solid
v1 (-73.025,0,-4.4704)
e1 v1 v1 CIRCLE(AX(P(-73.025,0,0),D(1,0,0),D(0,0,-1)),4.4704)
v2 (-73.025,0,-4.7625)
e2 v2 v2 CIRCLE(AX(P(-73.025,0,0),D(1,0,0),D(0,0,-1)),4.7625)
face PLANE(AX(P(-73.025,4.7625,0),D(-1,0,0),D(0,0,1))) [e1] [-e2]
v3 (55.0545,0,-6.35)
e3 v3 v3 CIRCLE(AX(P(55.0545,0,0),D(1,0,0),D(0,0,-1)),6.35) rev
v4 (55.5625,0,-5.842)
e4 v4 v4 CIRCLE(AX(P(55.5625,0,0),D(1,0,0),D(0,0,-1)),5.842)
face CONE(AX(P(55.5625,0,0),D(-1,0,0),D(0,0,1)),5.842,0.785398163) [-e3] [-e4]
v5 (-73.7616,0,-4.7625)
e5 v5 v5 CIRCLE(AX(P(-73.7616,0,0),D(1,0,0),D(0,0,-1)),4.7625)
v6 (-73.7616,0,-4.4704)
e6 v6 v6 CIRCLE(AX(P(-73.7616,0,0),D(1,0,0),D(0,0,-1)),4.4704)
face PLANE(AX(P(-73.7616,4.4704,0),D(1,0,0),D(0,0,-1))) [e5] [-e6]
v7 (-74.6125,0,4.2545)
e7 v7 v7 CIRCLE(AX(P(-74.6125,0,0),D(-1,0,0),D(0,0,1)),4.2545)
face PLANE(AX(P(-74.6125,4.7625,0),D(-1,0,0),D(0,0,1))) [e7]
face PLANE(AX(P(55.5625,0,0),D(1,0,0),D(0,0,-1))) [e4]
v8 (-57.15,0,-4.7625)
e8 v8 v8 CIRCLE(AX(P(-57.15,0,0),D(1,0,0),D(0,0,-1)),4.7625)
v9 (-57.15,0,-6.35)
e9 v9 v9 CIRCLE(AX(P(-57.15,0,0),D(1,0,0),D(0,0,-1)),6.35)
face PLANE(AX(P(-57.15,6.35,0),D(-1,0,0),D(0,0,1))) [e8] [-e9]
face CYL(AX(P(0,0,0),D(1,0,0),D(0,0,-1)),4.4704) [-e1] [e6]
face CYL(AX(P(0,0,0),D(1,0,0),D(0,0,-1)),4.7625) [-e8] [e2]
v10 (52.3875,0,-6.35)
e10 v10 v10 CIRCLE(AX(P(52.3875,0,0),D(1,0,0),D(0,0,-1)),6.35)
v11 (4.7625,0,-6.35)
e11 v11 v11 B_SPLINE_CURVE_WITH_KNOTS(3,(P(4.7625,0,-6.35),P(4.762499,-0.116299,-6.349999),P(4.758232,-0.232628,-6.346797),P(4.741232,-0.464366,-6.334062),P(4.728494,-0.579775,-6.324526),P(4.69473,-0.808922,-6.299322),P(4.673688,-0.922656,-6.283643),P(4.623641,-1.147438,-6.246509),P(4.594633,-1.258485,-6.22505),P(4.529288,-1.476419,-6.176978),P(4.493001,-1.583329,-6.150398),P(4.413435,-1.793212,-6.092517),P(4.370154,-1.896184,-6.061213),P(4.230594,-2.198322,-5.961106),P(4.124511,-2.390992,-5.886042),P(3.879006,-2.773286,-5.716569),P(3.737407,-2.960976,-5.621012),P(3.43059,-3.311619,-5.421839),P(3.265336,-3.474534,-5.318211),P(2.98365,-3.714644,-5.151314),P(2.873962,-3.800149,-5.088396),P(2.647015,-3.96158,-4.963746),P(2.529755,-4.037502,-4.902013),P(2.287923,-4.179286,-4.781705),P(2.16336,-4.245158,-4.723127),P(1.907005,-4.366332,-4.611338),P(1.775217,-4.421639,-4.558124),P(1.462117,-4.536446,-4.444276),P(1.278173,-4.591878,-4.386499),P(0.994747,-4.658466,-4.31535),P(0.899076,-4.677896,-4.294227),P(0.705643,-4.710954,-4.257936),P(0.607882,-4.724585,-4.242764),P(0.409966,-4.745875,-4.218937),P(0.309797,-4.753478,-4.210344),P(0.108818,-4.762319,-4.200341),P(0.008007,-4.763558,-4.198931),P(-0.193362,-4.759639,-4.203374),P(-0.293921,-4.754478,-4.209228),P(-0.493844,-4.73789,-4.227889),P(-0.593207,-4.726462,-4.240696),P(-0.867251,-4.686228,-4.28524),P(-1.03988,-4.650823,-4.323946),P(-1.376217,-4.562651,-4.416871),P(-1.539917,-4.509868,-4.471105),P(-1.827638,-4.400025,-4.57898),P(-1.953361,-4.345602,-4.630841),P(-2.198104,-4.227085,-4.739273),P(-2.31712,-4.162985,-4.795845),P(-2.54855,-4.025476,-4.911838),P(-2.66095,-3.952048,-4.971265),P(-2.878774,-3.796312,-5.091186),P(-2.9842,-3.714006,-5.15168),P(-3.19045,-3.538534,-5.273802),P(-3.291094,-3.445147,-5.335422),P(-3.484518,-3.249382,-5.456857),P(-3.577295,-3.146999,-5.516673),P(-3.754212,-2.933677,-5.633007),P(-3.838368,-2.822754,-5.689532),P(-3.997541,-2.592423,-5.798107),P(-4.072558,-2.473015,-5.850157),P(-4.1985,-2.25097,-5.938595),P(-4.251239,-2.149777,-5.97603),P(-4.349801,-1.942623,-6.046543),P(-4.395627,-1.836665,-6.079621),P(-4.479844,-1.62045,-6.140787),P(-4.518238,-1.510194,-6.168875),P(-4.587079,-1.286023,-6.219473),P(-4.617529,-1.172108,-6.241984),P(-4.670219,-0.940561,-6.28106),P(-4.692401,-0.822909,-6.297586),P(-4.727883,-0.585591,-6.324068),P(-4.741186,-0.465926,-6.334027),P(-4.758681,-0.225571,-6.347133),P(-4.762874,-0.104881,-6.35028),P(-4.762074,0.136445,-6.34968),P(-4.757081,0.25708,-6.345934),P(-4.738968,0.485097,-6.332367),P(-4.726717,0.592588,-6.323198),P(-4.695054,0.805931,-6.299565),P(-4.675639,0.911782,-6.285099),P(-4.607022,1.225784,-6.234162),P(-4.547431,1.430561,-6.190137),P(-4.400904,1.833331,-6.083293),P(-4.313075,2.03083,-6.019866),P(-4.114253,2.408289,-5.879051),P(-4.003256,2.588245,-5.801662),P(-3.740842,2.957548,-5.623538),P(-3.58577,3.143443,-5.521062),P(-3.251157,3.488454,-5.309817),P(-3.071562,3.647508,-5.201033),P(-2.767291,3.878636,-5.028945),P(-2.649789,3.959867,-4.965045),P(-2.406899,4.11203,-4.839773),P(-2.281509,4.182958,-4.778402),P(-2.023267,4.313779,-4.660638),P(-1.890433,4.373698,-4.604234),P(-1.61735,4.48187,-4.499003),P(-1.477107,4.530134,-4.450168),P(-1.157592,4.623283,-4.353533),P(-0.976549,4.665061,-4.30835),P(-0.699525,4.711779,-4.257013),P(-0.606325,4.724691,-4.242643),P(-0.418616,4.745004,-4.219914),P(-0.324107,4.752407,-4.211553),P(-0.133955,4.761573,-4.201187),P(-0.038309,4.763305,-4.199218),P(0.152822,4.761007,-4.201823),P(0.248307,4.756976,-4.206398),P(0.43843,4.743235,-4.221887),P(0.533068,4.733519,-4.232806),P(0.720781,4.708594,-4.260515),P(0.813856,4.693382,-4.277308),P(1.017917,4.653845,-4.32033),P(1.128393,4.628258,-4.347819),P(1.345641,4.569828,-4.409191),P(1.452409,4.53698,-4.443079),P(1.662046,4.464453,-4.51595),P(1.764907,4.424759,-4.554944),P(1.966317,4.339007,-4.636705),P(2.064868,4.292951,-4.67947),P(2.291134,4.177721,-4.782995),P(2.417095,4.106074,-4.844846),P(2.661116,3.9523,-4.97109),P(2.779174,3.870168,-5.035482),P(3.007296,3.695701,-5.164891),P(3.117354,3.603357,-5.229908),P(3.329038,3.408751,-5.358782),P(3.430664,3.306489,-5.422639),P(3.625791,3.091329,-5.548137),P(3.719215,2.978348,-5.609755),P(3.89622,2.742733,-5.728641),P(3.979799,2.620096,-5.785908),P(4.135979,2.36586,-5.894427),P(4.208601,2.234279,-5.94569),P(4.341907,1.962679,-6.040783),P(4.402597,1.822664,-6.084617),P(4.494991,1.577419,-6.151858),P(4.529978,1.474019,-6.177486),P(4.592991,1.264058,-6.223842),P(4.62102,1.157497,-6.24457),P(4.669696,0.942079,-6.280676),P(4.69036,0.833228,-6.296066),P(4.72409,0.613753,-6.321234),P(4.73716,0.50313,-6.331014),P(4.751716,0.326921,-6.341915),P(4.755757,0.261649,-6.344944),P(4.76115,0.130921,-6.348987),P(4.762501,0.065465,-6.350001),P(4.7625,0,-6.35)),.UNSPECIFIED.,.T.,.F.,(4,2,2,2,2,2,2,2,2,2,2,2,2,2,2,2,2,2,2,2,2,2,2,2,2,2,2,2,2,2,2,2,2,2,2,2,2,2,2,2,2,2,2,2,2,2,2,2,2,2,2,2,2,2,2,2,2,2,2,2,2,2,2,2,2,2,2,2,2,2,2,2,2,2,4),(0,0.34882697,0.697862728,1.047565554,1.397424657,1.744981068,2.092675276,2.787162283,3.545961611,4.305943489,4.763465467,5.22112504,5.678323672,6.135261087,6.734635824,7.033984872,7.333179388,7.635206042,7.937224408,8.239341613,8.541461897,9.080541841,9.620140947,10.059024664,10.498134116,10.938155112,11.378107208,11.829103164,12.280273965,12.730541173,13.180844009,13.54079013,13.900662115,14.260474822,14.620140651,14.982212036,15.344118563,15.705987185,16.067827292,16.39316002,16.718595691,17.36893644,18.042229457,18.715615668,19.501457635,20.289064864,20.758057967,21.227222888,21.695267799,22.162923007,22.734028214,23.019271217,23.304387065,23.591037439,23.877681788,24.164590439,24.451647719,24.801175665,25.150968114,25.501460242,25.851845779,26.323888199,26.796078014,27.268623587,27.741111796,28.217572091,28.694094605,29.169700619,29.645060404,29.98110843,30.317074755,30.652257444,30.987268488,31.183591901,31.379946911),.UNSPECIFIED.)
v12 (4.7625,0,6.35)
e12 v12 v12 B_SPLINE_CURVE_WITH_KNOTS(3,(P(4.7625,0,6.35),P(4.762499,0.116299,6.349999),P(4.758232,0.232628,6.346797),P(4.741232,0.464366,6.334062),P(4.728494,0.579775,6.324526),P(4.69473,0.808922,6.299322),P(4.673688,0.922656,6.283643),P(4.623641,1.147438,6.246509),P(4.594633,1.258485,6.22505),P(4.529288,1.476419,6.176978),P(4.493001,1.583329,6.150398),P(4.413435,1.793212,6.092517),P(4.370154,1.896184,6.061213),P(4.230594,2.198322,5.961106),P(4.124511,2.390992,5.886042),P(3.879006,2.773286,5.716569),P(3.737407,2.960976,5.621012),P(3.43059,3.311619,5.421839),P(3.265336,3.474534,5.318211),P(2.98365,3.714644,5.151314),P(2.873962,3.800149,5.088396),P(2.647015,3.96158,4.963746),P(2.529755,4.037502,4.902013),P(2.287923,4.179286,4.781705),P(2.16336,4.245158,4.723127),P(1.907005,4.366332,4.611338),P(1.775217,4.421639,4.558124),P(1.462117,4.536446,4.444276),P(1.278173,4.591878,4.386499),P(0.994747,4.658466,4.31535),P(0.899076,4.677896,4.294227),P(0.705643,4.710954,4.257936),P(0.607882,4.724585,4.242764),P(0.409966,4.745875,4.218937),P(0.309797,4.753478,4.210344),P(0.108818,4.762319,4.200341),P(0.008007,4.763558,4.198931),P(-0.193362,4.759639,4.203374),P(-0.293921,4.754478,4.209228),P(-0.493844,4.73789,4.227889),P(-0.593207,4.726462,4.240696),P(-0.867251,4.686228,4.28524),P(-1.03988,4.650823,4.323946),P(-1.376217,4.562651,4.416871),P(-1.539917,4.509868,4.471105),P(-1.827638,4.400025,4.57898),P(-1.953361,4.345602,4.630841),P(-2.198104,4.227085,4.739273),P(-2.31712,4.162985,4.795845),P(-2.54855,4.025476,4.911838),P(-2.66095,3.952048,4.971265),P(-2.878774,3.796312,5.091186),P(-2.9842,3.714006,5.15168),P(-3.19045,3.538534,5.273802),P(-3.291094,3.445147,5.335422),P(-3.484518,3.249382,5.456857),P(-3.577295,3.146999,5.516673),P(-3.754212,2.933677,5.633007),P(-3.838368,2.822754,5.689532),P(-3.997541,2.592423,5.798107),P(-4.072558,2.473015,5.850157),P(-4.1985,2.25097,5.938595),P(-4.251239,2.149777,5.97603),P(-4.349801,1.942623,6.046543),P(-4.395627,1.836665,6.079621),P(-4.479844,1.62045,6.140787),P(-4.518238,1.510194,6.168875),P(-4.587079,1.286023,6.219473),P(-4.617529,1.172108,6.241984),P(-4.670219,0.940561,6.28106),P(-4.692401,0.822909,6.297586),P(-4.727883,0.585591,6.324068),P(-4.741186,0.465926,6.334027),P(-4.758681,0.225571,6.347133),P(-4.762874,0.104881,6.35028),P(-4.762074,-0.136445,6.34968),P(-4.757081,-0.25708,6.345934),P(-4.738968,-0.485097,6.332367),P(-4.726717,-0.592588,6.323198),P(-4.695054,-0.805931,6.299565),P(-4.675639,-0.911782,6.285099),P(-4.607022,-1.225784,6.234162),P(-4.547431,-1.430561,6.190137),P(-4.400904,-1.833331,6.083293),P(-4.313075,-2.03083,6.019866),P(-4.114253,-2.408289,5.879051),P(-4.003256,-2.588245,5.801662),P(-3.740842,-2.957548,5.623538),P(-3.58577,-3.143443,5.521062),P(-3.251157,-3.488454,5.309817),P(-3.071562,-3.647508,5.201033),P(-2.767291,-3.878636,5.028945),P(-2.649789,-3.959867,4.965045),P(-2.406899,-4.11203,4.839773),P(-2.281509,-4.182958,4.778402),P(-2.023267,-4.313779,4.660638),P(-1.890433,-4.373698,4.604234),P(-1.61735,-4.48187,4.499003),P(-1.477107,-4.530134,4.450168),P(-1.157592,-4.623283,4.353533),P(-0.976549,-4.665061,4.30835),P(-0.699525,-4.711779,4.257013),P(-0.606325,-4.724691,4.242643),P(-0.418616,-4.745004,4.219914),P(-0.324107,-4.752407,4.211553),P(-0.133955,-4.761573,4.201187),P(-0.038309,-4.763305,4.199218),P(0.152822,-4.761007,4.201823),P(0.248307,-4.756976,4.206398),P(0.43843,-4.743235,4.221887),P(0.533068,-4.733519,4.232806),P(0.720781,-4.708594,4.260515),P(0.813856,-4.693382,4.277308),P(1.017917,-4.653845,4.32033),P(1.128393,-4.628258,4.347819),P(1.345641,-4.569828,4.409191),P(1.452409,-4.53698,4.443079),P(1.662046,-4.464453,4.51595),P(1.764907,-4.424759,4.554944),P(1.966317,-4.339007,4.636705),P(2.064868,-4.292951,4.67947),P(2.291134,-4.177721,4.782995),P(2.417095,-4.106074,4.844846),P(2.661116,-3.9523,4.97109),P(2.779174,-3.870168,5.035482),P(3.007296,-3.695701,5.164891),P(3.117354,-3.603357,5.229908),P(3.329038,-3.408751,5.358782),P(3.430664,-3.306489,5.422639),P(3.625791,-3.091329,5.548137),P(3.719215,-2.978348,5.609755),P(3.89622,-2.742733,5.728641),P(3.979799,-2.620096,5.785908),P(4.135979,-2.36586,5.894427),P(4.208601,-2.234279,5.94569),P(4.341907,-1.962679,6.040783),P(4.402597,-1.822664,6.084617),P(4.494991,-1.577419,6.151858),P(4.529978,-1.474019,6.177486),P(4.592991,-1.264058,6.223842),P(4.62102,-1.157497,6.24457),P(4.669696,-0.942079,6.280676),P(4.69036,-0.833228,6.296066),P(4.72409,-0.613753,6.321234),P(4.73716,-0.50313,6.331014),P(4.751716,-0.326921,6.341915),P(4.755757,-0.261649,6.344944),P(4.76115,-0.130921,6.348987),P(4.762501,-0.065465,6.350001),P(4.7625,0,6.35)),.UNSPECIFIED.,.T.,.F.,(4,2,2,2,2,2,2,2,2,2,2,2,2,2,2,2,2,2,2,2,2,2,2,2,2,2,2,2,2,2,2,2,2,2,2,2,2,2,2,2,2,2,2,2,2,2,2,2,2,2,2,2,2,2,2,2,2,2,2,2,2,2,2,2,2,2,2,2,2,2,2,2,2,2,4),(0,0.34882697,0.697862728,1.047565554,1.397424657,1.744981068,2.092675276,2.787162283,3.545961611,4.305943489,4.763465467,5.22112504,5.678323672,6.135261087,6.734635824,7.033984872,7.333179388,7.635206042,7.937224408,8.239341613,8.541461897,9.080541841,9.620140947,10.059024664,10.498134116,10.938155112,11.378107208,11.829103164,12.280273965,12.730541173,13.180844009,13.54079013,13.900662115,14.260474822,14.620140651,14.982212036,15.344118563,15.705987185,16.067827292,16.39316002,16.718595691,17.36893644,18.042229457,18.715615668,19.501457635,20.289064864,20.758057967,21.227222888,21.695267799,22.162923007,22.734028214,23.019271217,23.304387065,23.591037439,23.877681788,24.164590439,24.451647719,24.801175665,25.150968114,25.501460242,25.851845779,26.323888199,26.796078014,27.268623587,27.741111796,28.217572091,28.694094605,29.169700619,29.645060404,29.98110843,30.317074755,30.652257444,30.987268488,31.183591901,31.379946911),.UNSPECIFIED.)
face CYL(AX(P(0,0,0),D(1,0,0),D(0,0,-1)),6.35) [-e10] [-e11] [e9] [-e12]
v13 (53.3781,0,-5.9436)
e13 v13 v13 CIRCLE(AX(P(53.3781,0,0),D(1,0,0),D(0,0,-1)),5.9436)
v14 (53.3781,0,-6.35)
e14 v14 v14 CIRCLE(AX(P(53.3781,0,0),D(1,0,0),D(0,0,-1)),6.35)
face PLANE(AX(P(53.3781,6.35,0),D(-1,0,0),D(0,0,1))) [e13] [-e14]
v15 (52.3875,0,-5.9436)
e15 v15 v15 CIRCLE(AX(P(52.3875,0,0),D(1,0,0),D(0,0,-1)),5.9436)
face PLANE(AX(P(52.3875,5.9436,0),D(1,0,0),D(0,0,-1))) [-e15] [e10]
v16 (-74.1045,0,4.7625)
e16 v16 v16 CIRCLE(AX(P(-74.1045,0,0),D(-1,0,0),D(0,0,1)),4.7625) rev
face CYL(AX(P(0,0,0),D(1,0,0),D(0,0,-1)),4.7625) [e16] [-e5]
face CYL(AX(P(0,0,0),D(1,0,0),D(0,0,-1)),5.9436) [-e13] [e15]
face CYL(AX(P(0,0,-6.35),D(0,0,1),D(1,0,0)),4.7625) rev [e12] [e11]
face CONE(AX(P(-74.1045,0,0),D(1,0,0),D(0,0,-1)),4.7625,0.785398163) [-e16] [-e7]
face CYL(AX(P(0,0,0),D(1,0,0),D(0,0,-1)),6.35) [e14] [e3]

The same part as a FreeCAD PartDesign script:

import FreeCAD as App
import Part
import Sketcher

V = App.Vector
Q = App.Units.Quantity


def edges_at(feature, points):
    """Names of the edges that pass closest to the given points."""
    edges = feature.Shape.Edges
    near = lambda p: min(range(len(edges)), key=lambda i: edges[i].distToShape(Part.Vertex(*p))[0])
    return sorted({f"Edge{near(p) + 1}" for p in points})

doc = App.newDocument("Part")
body = doc.addObject("PartDesign::Body", "Body")

sketch1 = body.newObject("Sketcher::SketchObject", "Sketch")
sketch1.AttachmentSupport = (doc.getObject("XY_Plane"), [""])
sketch1.MapMode = "FlatFace"
sketch1.addGeometry([
    Part.LineSegment(V(52.3875, 6.35, 0), V(-57.15, 6.35, 0)),
    Part.LineSegment(V(-57.15, 6.35, 0), V(-57.15, 4.7625, 0)),
    Part.LineSegment(V(-57.15, 4.7625, 0), V(-73.025, 4.7625, 0)),
    Part.LineSegment(V(-73.025, 4.7625, 0), V(-73.025, 4.4704, 0)),
    Part.LineSegment(V(-73.025, 4.4704, 0), V(-73.7616, 4.4704, 0)),
    Part.LineSegment(V(-73.7616, 4.4704, 0), V(-73.7616, 4.7625, 0)),
    Part.LineSegment(V(-73.7616, 4.7625, 0), V(-74.6125, 4.7625, 0)),
    Part.LineSegment(V(-74.6125, 4.7625, 0), V(-74.6125, 0, 0)),
    Part.LineSegment(V(-74.6125, 0, 0), V(55.5625, 0, 0)),
    Part.LineSegment(V(55.5625, 0, 0), V(55.5625, 6.35, 0)),
    Part.LineSegment(V(55.5625, 6.35, 0), V(53.3781, 6.35, 0)),
    Part.LineSegment(V(53.3781, 6.35, 0), V(53.3781, 5.9436, 0)),
    Part.LineSegment(V(53.3781, 5.9436, 0), V(52.3875, 5.9436, 0)),
    Part.LineSegment(V(52.3875, 5.9436, 0), V(52.3875, 6.35, 0)),
], False)
sketch1.addConstraint([
    Sketcher.Constraint("Coincident", 0, 2, 1, 1),
    Sketcher.Constraint("Coincident", 1, 2, 2, 1),
    Sketcher.Constraint("Coincident", 2, 2, 3, 1),
    Sketcher.Constraint("Coincident", 3, 2, 4, 1),
    Sketcher.Constraint("Coincident", 4, 2, 5, 1),
    Sketcher.Constraint("Coincident", 5, 2, 6, 1),
    Sketcher.Constraint("Coincident", 6, 2, 7, 1),
    Sketcher.Constraint("Coincident", 7, 2, 8, 1),
    Sketcher.Constraint("Coincident", 8, 2, 9, 1),
    Sketcher.Constraint("Coincident", 9, 2, 10, 1),
    Sketcher.Constraint("Coincident", 10, 2, 11, 1),
    Sketcher.Constraint("Coincident", 11, 2, 12, 1),
    Sketcher.Constraint("Coincident", 12, 2, 13, 1),
    Sketcher.Constraint("Coincident", 13, 2, 0, 1),
    Sketcher.Constraint("Horizontal", 0),
    Sketcher.Constraint("Vertical", 1),
    Sketcher.Constraint("Horizontal", 2),
    Sketcher.Constraint("Vertical", 3),
    Sketcher.Constraint("Horizontal", 4),
    Sketcher.Constraint("Vertical", 5),
    Sketcher.Constraint("Horizontal", 6),
    Sketcher.Constraint("Vertical", 7),
    Sketcher.Constraint("Horizontal", 8),
    Sketcher.Constraint("Vertical", 9),
    Sketcher.Constraint("Horizontal", 10),
    Sketcher.Constraint("Vertical", 11),
    Sketcher.Constraint("Horizontal", 12),
    Sketcher.Constraint("Vertical", 13),
    Sketcher.Constraint("PointOnObject", 7, 2, -1),
    Sketcher.Constraint("Horizontal", 2, 2, 5, 2),
    Sketcher.Constraint("Horizontal", 0, 2, 9, 2),
    Sketcher.Constraint("DistanceY", 9, 1, 9, 2, Q("0.25 in")),
    Sketcher.Constraint("DistanceX", 0, 2, 0, 1, Q("4.3125 in")),
    Sketcher.Constraint("DistanceX", 2, 2, 2, 1, Q("0.625 in")),
    Sketcher.Constraint("DistanceX", 4, 2, 4, 1, Q("0.029 in")),
    Sketcher.Constraint("DistanceX", 8, 1, 8, 2, Q("5.125 in")),
    Sketcher.Constraint("DistanceX", 10, 2, 10, 1, Q("0.086 in")),
    Sketcher.Constraint("DistanceX", 12, 2, 12, 1, Q("0.039 in")),
    Sketcher.Constraint("DistanceY", 1, 2, 1, 1, Q("0.0625 in")),
    Sketcher.Constraint("DistanceY", 11, 2, 11, 1, Q("0.016 in")),
    Sketcher.Constraint("DistanceX", 0, 2, -1, 1, Q("2.25 in")),
    Sketcher.Constraint("DistanceY", 3, 2, 3, 1, Q("0.0115 in")),
])
revolution = body.newObject("PartDesign::Revolution", "Revolution")
revolution.Profile = sketch1
revolution.ReferenceAxis = (sketch1, ["H_Axis"])
revolution.Angle = 360

sketch2 = body.newObject("Sketcher::SketchObject", "Sketch001")
sketch2.AttachmentSupport = (doc.getObject("XY_Plane"), [""])
sketch2.MapMode = "FlatFace"
sketch2.addGeometry(Part.Circle(V(0, 0, 0), V(0, 0, 1), 4.7625), False)
sketch2.addConstraint([
    Sketcher.Constraint("Coincident", 0, 3, -1, 1),
    Sketcher.Constraint("Diameter", 0, Q("0.375 in")),
])
pocket1 = body.newObject("PartDesign::Pocket", "Pocket")
pocket1.Profile = sketch2
pocket1.Type = "ThroughAll"
pocket1.Midplane = True
doc.recompute()

chamfer = body.newObject("PartDesign::Chamfer", "Chamfer")
chamfer.Base = (pocket1, edges_at(pocket1, [(-74.612, 0, 4.763), (55.562, 0, 6.35)]))
chamfer.Size = Q("0.02 in")

doc.recompute()
